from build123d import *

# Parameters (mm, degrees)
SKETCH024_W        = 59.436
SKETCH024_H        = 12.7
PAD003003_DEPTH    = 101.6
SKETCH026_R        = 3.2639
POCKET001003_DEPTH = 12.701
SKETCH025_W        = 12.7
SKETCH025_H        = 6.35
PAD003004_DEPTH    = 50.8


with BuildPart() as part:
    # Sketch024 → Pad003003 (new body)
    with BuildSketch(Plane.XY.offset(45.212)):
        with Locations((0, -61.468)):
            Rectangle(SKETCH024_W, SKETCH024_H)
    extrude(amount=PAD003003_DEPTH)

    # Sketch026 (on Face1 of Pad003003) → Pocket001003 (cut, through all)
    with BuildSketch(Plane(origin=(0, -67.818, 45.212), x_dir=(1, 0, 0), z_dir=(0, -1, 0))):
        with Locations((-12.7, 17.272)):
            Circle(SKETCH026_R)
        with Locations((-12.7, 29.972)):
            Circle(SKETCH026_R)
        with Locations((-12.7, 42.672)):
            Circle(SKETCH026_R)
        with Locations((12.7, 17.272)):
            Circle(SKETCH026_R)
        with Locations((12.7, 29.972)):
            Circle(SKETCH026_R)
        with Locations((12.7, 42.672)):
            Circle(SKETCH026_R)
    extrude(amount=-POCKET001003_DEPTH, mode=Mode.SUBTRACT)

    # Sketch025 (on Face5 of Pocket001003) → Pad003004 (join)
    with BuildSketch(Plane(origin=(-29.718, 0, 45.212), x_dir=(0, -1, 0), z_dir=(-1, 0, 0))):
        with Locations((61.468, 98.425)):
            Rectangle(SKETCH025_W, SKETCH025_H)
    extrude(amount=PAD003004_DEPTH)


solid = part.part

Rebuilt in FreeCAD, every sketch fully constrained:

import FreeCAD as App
import Part
import Sketcher
from FreeCAD import Vector
Q = App.Units.Quantity


def add_polygon(sketch, points):
    """Adds a closed chain of lines whose ends are joined by coincident constraints."""
    first, n = sketch.GeometryCount, len(points)
    for a, b in zip(points, points[1:] + points[:1]):
        sketch.addGeometry(Part.LineSegment(App.Vector(*a, 0), App.Vector(*b, 0)), False)
    for i in range(n):
        sketch.addConstraint(Sketcher.Constraint("Coincident", first + i, 2, first + (i + 1) % n, 1))

doc = App.newDocument("Part")
body = doc.addObject("PartDesign::Body", "Body")

# Sketch on XY plane
sketch1 = doc.addObject("Sketcher::SketchObject", "Sketch")
body.addObject(sketch1)
sketch1.AttachmentSupport = (doc.XY_Plane, [""])
sketch1.MapMode = "FlatFace"
sketch1.AttachmentOffset = App.Placement(Vector(0, 0, 1.78 * 25.4), App.Rotation())
add_polygon(sketch1, [(-30, -55), (-30, -68), (30, -68), (30, -55)])  # lines 0-3
sketch1.addConstraint(Sketcher.Constraint("Vertical", 0))
sketch1.addConstraint(Sketcher.Constraint("Horizontal", 1))
sketch1.addConstraint(Sketcher.Constraint("Vertical", 2))
sketch1.addConstraint(Sketcher.Constraint("Horizontal", 3))
sketch1.addConstraint(Sketcher.Constraint("DistanceY", 0, 2, 0, 1, Q("0.5 in")))
sketch1.addConstraint(Sketcher.Constraint("DistanceX", 1, 1, 1, 2, Q("2.34 in")))
sketch1.addConstraint(Sketcher.Constraint("DistanceX", 0, 2, -1, 1, Q("1.17 in")))
sketch1.addConstraint(Sketcher.Constraint("DistanceY", 0, 2, -1, 1, Q("2.67 in")))
pad1 = doc.addObject("PartDesign::Pad", "Pad")
body.addObject(pad1)
pad1.Profile = sketch1
pad1.Length = Q("4 in")

# Sketch on XZ plane
sketch2 = doc.addObject("Sketcher::SketchObject", "Sketch001")
body.addObject(sketch2)
sketch2.AttachmentSupport = (doc.XZ_Plane, [""])
sketch2.MapMode = "FlatFace"
sketch2.AttachmentOffset = App.Placement(Vector(0, 0, 2.67 * 25.4), App.Rotation())
sketch2.addGeometry(Part.Circle(Vector(-12.7, 62.5, 0), Vector(0, 0, 1), 3.3), False)
sketch2.addGeometry(Part.Circle(Vector(-12.7, 75.2, 0), Vector(0, 0, 1), 3.3), False)
sketch2.addGeometry(Part.Circle(Vector(-12.7, 87.9, 0), Vector(0, 0, 1), 3.3), False)
sketch2.addGeometry(Part.Circle(Vector(12.7, 62.5, 0), Vector(0, 0, 1), 3.3), False)
sketch2.addGeometry(Part.Circle(Vector(12.7, 75.2, 0), Vector(0, 0, 1), 3.3), False)
sketch2.addGeometry(Part.Circle(Vector(12.7, 87.9, 0), Vector(0, 0, 1), 3.3), False)
sketch2.addConstraint(Sketcher.Constraint("Equal", 0, 1))
sketch2.addConstraint(Sketcher.Constraint("Equal", 1, 2))
sketch2.addConstraint(Sketcher.Constraint("Equal", 2, 3))
sketch2.addConstraint(Sketcher.Constraint("Equal", 3, 4))
sketch2.addConstraint(Sketcher.Constraint("Equal", 4, 5))
sketch2.addConstraint(Sketcher.Constraint("Symmetric", 0, 3, 3, 3, -2))
sketch2.addConstraint(Sketcher.Constraint("Symmetric", 1, 3, 4, 3, -2))
sketch2.addConstraint(Sketcher.Constraint("Symmetric", 2, 3, 5, 3, -2))
sketch2.addConstraint(Sketcher.Constraint("Vertical", 0, 3, 1, 3))
sketch2.addConstraint(Sketcher.Constraint("Vertical", 1, 3, 2, 3))
sketch2.addConstraint(Sketcher.Constraint("Diameter", 0, Q("0.257 in")))
sketch2.addConstraint(Sketcher.Constraint("DistanceY", 0, 3, 2, 3, Q("1 in")))
sketch2.addConstraint(Sketcher.Constraint("DistanceX", 0, 3, 3, 3, Q("1 in")))
sketch2.addConstraint(Sketcher.Constraint("DistanceY", 0, 3, 1, 3, Q("0.5 in")))
sketch2.addConstraint(Sketcher.Constraint("DistanceY", -1, 1, 0, 3, Q("2.46 in")))
pocket1 = doc.addObject("PartDesign::Pocket", "Pocket")
body.addObject(pocket1)
pocket1.Profile = sketch2
pocket1.Type = "ThroughAll"

# Sketch on YZ plane
sketch3 = doc.addObject("Sketcher::SketchObject", "Sketch002")
body.addObject(sketch3)
sketch3.AttachmentSupport = (doc.YZ_Plane, [""])
sketch3.MapMode = "FlatFace"
sketch3.AttachmentOffset = App.Placement(Vector(0, 0, -1.17 * 25.4), App.Rotation())
add_polygon(sketch3, [(-55, 147), (-55, 140), (-68, 140), (-68, 147)])  # lines 0-3
sketch3.addConstraint(Sketcher.Constraint("Vertical", 0))
sketch3.addConstraint(Sketcher.Constraint("Horizontal", 1))
sketch3.addConstraint(Sketcher.Constraint("Vertical", 2))
sketch3.addConstraint(Sketcher.Constraint("Horizontal", 3))
sketch3.addConstraint(Sketcher.Constraint("DistanceX", 1, 2, 1, 1, Q("0.5 in")))
sketch3.addConstraint(Sketcher.Constraint("DistanceY", 0, 2, 0, 1, Q("0.25 in")))
sketch3.addConstraint(Sketcher.Constraint("DistanceX", 0, 2, -1, 1, Q("2.17 in")))
sketch3.addConstraint(Sketcher.Constraint("DistanceY", -1, 1, 0, 2, Q("5.53 in")))
pad2 = doc.addObject("PartDesign::Pad", "Pad001")
body.addObject(pad2)
pad2.Profile = sketch3
pad2.Length = Q("2 in")
pad2.Reversed = True

doc.recompute()
